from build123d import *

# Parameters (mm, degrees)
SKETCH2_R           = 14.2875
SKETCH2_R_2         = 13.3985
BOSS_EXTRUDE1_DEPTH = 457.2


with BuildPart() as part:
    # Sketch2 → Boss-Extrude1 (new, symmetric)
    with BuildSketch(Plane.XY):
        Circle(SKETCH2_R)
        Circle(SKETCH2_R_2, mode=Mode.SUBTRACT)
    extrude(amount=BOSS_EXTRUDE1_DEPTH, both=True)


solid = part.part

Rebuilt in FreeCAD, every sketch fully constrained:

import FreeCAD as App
import Part
import Sketcher
from FreeCAD import Vector
Q = App.Units.Quantity

doc = App.newDocument("Part")
body = doc.addObject("PartDesign::Body", "Body")

# Sketch on XY plane
sketch1 = body.newObject("Sketcher::SketchObject", "Sketch")
sketch1.AttachmentSupport = (doc.getObject("XY_Plane"), [""])
sketch1.MapMode = "FlatFace"
sketch1.addGeometry([
    Part.Circle(Vector(0, 0, 0), Vector(0, 0, 1), 14),
    Part.Circle(Vector(0, 0, 0), Vector(0, 0, 1), 13),
], False)
sketch1.addConstraint([
    Sketcher.Constraint("Coincident", 0, 3, -1, 1),
    Sketcher.Constraint("Coincident", 1, 3, -1, 1),
    Sketcher.Constraint("Diameter", 0, Q("1.125 in")),
    Sketcher.Constraint("Diameter", 1, Q("1.055 in")),
])
pad1 = body.newObject("PartDesign::Pad", "Pad")
pad1.Profile = sketch1
pad1.Length = Q("36 in")
pad1.Midplane = True

doc.recompute()
